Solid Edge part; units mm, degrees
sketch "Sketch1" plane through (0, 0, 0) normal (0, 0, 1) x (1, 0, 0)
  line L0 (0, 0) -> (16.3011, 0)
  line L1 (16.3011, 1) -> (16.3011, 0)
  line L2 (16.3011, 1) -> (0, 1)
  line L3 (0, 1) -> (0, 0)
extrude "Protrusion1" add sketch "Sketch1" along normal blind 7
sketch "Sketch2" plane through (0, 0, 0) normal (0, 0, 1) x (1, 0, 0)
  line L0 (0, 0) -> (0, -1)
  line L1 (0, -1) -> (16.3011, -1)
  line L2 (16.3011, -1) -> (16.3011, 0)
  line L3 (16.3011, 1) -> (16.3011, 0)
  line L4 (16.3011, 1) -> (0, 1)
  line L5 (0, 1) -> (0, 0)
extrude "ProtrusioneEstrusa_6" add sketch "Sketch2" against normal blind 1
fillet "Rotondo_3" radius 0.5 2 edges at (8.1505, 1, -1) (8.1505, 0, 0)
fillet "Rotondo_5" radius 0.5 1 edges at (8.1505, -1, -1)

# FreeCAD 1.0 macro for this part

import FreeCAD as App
import Part
import Sketcher

V = App.Vector
Q = App.Units.Quantity


def edges_at(feature, points):
    """Names of the edges that pass closest to the given points."""
    edges = feature.Shape.Edges
    near = lambda p: min(range(len(edges)), key=lambda i: edges[i].distToShape(Part.Vertex(*p))[0])
    return sorted({f"Edge{near(p) + 1}" for p in points})

doc = App.newDocument("Part")
params = doc.addObject("Spreadsheet::Sheet", "Params")
for row, (alias, value) in enumerate([
    ("sketch1_height", "1 mm"),
    ("pad1_length", "7 mm"),
    ("sketch2_height", "2 mm"),
    ("pad2_length", "1 mm"),
    ("fillet_radius", "0.5 mm"),
    ("fillet2_radius", "0.5 mm"),
], start=1):
    params.set(f"A{row}", alias)
    params.set(f"B{row}", "=" + value)
    params.setAlias(f"B{row}", alias)

body = doc.addObject("PartDesign::Body", "Body")

# Sketch on XY plane
sketch1 = doc.addObject("Sketcher::SketchObject", "Sketch")
body.addObject(sketch1)
sketch1.AttachmentSupport = (doc.XY_Plane, [""])
sketch1.MapMode = "FlatFace"
sketch1.addGeometry([
    Part.LineSegment(V(0, 1, 0), V(0, 0, 0)),
    Part.LineSegment(V(0, 0, 0), V(16.3, 0, 0)),
    Part.LineSegment(V(16.3, 0, 0), V(16.3, 1, 0)),
    Part.LineSegment(V(16.3, 1, 0), V(0, 1, 0)),
], False)
sketch1.addConstraint([
    Sketcher.Constraint("Coincident", 0, 2, 1, 1),
    Sketcher.Constraint("Coincident", 1, 2, 2, 1),
    Sketcher.Constraint("Coincident", 2, 2, 3, 1),
    Sketcher.Constraint("Coincident", 3, 2, 0, 1),
    Sketcher.Constraint("Vertical", 0),
    Sketcher.Constraint("Horizontal", 1),
    Sketcher.Constraint("Vertical", 2),
    Sketcher.Constraint("Horizontal", 3),
    Sketcher.Constraint("Coincident", 0, 2, -1, 1),
    Sketcher.Constraint("DistanceY", 0, 2, 0, 1, Q("1 mm")),
    Sketcher.Constraint("DistanceX", 1, 1, 1, 2, Q("16.301 mm")),
])
sketch1.setExpression("Constraints[9]", "Params.sketch1_height")
pad1 = doc.addObject("PartDesign::Pad", "Pad")
body.addObject(pad1)
pad1.Profile = sketch1
pad1.setExpression("Length", "Params.pad1_length")

# Sketch on XY plane
sketch2 = doc.addObject("Sketcher::SketchObject", "Sketch001")
body.addObject(sketch2)
sketch2.AttachmentSupport = (doc.XY_Plane, [""])
sketch2.MapMode = "FlatFace"
sketch2.addGeometry([
    Part.LineSegment(V(0, 1, 0), V(0, -1, 0)),
    Part.LineSegment(V(0, -1, 0), V(16.3, -1, 0)),
    Part.LineSegment(V(16.3, -1, 0), V(16.3, 1, 0)),
    Part.LineSegment(V(16.3, 1, 0), V(0, 1, 0)),
], False)
sketch2.addConstraint([
    Sketcher.Constraint("Coincident", 0, 2, 1, 1),
    Sketcher.Constraint("Coincident", 1, 2, 2, 1),
    Sketcher.Constraint("Coincident", 2, 2, 3, 1),
    Sketcher.Constraint("Coincident", 3, 2, 0, 1),
    Sketcher.Constraint("Vertical", 0),
    Sketcher.Constraint("Horizontal", 1),
    Sketcher.Constraint("Vertical", 2),
    Sketcher.Constraint("Horizontal", 3),
    Sketcher.Constraint("Symmetric", 0, 2, 3, 2, -1, 1),
    Sketcher.Constraint("DistanceY", 0, 2, 0, 1, Q("2 mm")),
    Sketcher.Constraint("DistanceX", 1, 1, 1, 2, Q("16.301 mm")),
])
sketch2.setExpression("Constraints[9]", "Params.sketch2_height")
pad2 = doc.addObject("PartDesign::Pad", "Pad001")
body.addObject(pad2)
pad2.Profile = sketch2
pad2.setExpression("Length", "Params.pad2_length")
pad2.Reversed = True
doc.recompute()

fillet = doc.addObject("PartDesign::Fillet", "Fillet")
body.addObject(fillet)
fillet.Base = (pad2, edges_at(pad2, [(8.15, 1, -1), (8.15, 0, 0)]))
fillet.setExpression("Radius", "Params.fillet_radius")
doc.recompute()

fillet2 = doc.addObject("PartDesign::Fillet", "Fillet001")
body.addObject(fillet2)
fillet2.Base = (fillet, edges_at(fillet, [(8.15, -1, -1)]))
fillet2.setExpression("Radius", "Params.fillet2_radius")

doc.recompute()
